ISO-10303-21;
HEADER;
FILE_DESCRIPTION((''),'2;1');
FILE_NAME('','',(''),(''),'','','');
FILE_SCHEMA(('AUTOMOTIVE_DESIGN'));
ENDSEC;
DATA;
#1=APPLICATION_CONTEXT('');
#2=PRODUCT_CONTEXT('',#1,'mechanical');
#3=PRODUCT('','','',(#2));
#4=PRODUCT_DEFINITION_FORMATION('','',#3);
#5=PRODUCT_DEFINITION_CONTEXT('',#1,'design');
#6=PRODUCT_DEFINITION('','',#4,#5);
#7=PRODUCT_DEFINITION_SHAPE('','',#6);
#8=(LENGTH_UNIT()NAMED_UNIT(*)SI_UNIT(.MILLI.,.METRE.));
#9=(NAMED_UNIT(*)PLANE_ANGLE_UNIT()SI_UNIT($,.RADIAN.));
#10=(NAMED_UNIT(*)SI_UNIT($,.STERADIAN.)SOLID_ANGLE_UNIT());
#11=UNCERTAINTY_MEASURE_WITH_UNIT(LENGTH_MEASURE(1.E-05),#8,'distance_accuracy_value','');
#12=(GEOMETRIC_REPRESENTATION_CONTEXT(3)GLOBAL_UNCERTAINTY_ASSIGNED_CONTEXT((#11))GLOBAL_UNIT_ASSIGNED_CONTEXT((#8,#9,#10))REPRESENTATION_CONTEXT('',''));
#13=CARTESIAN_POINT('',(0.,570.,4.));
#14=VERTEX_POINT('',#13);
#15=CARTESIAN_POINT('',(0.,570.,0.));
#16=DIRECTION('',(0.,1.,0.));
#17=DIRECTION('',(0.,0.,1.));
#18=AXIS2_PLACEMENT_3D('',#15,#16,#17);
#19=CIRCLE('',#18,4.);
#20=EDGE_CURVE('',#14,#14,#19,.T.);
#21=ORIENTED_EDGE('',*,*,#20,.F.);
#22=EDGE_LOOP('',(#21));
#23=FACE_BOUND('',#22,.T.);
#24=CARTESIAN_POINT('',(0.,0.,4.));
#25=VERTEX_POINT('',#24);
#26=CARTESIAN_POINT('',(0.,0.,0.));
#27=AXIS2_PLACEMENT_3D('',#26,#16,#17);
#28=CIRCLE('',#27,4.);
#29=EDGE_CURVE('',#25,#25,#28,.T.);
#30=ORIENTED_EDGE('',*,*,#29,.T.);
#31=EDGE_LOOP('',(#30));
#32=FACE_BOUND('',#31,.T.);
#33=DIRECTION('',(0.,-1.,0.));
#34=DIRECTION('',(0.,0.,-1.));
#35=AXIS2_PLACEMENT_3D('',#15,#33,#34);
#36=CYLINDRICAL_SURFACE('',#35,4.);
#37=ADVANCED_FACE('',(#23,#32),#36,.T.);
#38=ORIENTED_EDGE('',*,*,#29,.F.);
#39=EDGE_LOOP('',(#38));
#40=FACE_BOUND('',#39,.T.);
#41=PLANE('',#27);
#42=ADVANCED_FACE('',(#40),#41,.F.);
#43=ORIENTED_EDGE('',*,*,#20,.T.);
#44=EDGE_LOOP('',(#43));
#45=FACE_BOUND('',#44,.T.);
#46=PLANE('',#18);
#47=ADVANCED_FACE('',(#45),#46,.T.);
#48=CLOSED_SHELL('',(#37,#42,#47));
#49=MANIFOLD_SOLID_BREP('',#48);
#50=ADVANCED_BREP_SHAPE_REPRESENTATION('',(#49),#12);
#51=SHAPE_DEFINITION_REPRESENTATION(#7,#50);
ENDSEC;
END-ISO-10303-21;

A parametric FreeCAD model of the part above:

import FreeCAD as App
import Part
import Sketcher
Q = App.Units.Quantity

doc = App.newDocument("Part")
params = doc.addObject("Spreadsheet::Sheet", "Params")
for row, (alias, value) in enumerate([
    ("sketch1_diameter", "8 mm"),
    ("pad1_length", "570 mm"),
], start=1):
    params.set(f"A{row}", alias)
    params.set(f"B{row}", "=" + value)
    params.setAlias(f"B{row}", alias)

body = doc.addObject("PartDesign::Body", "Body")

# Sketch on XZ plane
sketch1 = body.newObject("Sketcher::SketchObject", "Sketch")
sketch1.AttachmentSupport = (doc.getObject("XZ_Plane"), [""])
sketch1.MapMode = "FlatFace"
sketch1.addGeometry(Part.Circle(App.Vector(0, 0, 0), App.Vector(0, 0, 1), 4), False)
sketch1.addConstraint(Sketcher.Constraint("Coincident", 0, 3, -1, 1))
sketch1.addConstraint(Sketcher.Constraint("Diameter", 0, Q("8 mm")))
sketch1.setExpression("Constraints[1]", "Params.sketch1_diameter")
pad1 = body.newObject("PartDesign::Pad", "Pad")
pad1.Profile = sketch1
pad1.setExpression("Length", "Params.pad1_length")
pad1.Reversed = True

doc.recompute()
